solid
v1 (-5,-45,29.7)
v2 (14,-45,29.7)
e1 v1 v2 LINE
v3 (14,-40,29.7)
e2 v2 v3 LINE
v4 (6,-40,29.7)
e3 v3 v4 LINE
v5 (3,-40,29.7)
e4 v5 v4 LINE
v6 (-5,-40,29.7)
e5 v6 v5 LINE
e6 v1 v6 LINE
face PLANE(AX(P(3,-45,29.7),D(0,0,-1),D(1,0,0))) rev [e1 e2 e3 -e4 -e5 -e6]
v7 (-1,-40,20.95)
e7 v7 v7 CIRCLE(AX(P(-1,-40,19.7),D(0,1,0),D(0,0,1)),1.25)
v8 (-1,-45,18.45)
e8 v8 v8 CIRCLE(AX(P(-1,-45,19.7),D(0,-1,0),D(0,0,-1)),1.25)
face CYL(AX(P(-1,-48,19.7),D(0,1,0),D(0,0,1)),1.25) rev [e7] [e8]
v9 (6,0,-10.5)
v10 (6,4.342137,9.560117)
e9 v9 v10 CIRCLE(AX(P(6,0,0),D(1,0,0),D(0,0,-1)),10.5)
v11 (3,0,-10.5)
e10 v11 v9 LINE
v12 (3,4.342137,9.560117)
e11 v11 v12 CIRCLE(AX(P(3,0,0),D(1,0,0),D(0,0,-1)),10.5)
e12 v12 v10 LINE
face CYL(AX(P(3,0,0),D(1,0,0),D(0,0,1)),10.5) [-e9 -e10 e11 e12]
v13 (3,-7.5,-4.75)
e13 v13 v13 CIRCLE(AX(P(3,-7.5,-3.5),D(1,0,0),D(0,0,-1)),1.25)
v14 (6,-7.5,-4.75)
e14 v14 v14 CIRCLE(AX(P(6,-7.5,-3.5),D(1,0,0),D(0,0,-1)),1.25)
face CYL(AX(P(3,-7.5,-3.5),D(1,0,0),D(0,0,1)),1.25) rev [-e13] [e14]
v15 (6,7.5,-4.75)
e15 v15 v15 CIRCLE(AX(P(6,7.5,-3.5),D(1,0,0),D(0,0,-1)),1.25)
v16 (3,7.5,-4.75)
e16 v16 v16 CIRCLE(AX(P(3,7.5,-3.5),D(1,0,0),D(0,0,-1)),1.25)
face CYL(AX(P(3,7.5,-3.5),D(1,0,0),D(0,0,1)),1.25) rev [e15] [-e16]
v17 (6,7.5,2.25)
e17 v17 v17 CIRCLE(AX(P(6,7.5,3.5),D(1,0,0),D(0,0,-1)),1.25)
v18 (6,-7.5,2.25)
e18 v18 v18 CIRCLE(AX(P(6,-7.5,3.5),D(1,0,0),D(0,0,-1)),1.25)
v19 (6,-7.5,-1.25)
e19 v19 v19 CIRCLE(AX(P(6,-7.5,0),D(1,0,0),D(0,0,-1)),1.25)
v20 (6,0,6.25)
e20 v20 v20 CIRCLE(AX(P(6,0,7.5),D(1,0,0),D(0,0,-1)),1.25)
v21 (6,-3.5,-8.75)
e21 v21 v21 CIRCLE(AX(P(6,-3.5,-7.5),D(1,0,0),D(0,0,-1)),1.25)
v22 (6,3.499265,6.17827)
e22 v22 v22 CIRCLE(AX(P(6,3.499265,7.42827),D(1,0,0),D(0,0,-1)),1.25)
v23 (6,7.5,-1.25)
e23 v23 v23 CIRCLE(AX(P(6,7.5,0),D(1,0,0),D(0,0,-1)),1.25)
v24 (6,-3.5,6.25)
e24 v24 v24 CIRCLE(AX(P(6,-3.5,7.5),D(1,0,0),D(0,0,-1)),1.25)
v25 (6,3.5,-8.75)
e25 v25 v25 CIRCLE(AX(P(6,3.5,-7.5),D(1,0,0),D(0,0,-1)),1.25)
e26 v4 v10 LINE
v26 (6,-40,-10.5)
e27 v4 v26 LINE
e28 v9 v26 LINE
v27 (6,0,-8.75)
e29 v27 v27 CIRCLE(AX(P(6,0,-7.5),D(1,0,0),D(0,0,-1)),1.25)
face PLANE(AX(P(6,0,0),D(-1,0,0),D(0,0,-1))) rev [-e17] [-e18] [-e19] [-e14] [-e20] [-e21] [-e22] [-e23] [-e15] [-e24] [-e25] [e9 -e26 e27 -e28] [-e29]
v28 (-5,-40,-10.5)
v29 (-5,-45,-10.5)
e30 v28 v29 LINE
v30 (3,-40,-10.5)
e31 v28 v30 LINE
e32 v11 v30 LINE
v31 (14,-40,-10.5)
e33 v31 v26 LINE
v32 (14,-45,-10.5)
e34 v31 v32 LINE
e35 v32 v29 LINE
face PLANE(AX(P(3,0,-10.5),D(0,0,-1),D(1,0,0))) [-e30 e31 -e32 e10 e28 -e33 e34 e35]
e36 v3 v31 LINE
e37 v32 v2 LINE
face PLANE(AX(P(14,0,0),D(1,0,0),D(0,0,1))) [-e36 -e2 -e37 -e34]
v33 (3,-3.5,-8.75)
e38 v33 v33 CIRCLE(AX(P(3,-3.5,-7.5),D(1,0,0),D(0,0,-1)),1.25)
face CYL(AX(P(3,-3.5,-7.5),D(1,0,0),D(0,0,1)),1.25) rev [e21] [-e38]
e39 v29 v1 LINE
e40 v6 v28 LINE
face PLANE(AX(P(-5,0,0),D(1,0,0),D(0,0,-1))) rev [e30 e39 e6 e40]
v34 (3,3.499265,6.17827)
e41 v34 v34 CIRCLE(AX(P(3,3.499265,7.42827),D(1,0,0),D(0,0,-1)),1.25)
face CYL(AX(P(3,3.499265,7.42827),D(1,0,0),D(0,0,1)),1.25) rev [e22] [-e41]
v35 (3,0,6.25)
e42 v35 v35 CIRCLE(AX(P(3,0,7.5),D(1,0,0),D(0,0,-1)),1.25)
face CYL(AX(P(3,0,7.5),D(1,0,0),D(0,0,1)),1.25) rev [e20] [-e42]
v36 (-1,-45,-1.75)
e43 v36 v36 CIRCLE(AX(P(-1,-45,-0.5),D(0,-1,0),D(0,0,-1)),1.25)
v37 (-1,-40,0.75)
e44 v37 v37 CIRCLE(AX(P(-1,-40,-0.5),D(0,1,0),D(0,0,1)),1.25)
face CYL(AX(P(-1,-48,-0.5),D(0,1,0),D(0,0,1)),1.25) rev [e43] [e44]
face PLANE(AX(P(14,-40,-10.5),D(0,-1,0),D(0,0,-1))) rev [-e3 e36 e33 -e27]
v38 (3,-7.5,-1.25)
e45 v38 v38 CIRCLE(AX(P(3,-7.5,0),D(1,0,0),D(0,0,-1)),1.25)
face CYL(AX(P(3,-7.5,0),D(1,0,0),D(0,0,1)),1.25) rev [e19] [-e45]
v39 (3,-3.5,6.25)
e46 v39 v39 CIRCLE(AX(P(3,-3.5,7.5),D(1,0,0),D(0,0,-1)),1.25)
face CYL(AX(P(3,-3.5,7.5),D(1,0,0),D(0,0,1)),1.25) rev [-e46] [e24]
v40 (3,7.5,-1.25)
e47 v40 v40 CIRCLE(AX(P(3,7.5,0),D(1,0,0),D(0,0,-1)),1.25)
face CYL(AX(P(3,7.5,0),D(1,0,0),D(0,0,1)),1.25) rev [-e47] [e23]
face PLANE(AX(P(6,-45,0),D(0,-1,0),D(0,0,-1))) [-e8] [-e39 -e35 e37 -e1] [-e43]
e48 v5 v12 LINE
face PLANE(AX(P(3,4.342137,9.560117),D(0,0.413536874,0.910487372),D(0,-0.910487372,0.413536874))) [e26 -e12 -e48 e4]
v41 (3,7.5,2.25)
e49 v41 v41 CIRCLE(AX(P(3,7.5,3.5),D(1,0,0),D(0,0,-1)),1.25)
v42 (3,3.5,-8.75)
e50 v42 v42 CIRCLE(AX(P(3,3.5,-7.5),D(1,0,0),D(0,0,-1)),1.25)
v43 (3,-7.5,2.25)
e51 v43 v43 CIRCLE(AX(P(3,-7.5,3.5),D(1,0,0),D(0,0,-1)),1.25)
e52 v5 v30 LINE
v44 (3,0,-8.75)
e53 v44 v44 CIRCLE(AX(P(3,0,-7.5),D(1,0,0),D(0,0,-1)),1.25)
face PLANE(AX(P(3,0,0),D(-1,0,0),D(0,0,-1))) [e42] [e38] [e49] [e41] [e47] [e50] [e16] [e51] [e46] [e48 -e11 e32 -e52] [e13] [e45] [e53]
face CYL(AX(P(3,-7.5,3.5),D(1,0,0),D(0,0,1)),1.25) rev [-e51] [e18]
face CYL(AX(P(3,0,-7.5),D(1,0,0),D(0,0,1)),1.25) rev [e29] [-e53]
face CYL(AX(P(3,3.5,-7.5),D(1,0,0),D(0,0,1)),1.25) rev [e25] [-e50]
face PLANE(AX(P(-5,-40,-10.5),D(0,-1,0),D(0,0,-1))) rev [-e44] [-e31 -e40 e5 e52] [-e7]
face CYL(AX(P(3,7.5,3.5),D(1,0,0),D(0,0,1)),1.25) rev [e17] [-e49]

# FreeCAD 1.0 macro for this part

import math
import FreeCAD as App
import Part
import Sketcher

V = App.Vector


def add_polygon(sketch, points):
    """Adds a closed chain of lines whose ends are joined by coincident constraints."""
    first, n = sketch.GeometryCount, len(points)
    for a, b in zip(points, points[1:] + points[:1]):
        sketch.addGeometry(Part.LineSegment(App.Vector(*a, 0), App.Vector(*b, 0)), False)
    for i in range(n):
        sketch.addConstraint(Sketcher.Constraint("Coincident", first + i, 2, first + (i + 1) % n, 1))

doc = App.newDocument("Part")
body = doc.addObject("PartDesign::Body", "Body")

# Sketch on YZ plane
sketch1 = doc.addObject("Sketcher::SketchObject", "Sketch")
body.addObject(sketch1)
sketch1.AttachmentSupport = (doc.YZ_Plane, [""])
sketch1.MapMode = "FlatFace"
sketch1.addGeometry([
    Part.LineSegment(V(-40, -10.5, 0), V(0, -10.5, 0)),  # 0
    Part.ArcOfCircle(Part.Circle(V(0, 0, 0), V(0, 0, 1), 10.5), math.radians(-90), math.radians(66)),  # 1
    Part.LineSegment(V(4.3, 9.6, 0), V(-40, 29.7, 0)),  # 2
    Part.LineSegment(V(-40, 29.7, 0), V(-40, -10.5, 0)),  # 3
    Part.Circle(V(7.5, -3.5, 0), V(0, 0, 1), 1.2),  # 4
    Part.Circle(V(-7.5, 3.5, 0), V(0, 0, 1), 1.2),  # 5
    Part.Circle(V(-3.5, 7.5, 0), V(0, 0, 1), 1.2),  # 6
    Part.Circle(V(-7.5, 0, 0), V(0, 0, 1), 1.2),  # 7
    Part.Circle(V(-7.5, -3.5, 0), V(0, 0, 1), 1.2),  # 8
    Part.Circle(V(-3.5, -7.5, 0), V(0, 0, 1), 1.2),  # 9
    Part.Circle(V(0, 7.5, 0), V(0, 0, 1), 1.2),  # 10
    Part.Circle(V(3.5, 7.4, 0), V(0, 0, 1), 1.2),  # 11
    Part.Circle(V(7.5, 3.5, 0), V(0, 0, 1), 1.2),  # 12
    Part.Circle(V(0, -7.5, 0), V(0, 0, 1), 1.2),  # 13
    Part.Circle(V(3.5, -7.5, 0), V(0, 0, 1), 1.2),  # 14
    Part.Circle(V(7.5, 0, 0), V(0, 0, 1), 1.2),  # 15
], False)
sketch1.addConstraint([
    Sketcher.Constraint("Tangent", 0, 2, 1, 1),
    Sketcher.Constraint("Tangent", 1, 2, 2, 1),
    Sketcher.Constraint("Coincident", 2, 2, 3, 1),
    Sketcher.Constraint("Coincident", 3, 2, 0, 1),
    Sketcher.Constraint("Horizontal", 0),
    Sketcher.Constraint("Vertical", 3),
    Sketcher.Constraint("Coincident", 1, 3, -1, 1),
    Sketcher.Constraint("Equal", 4, 5),
    Sketcher.Constraint("Equal", 5, 6),
    Sketcher.Constraint("Equal", 6, 7),
    Sketcher.Constraint("Equal", 7, 8),
    Sketcher.Constraint("Equal", 8, 9),
    Sketcher.Constraint("Equal", 9, 10),
    Sketcher.Constraint("Equal", 10, 11),
    Sketcher.Constraint("Equal", 11, 12),
    Sketcher.Constraint("Equal", 12, 13),
    Sketcher.Constraint("Equal", 13, 14),
    Sketcher.Constraint("Equal", 14, 15),
    Sketcher.Constraint("Symmetric", 4, 3, 5, 3, -1, 1),
    Sketcher.Constraint("Symmetric", 8, 3, 12, 3, -1, 1),
    Sketcher.Constraint("Symmetric", 10, 3, 13, 3, -1, 1),
    Sketcher.Constraint("Symmetric", 6, 3, 14, 3, -1, 1),
    Sketcher.Constraint("Symmetric", 7, 3, 15, 3, -1, 1),
    Sketcher.Constraint("Symmetric", 4, 3, 8, 3, -2),
    Sketcher.Constraint("Symmetric", 9, 3, 14, 3, -2),
    Sketcher.Constraint("PointOnObject", 7, 3, -1),
    Sketcher.Constraint("PointOnObject", 10, 3, -2),
    Sketcher.Constraint("Horizontal", 6, 3, 10, 3),
    Sketcher.Constraint("Vertical", 5, 3, 7, 3),
    Sketcher.Constraint("Diameter", 4, 2.5),
    Sketcher.Constraint("Radius", 1, 10.5),
    Sketcher.Constraint("DistanceX", 0, 1, 0, 2, 40.0),
    Sketcher.Constraint("DistanceY", 3, 2, 3, 1, 40.2),
    Sketcher.Constraint("DistanceX", 5, 3, 4, 3, 15.0),
    Sketcher.Constraint("DistanceY", 4, 3, 5, 3, 7.0),
    Sketcher.Constraint("DistanceX", 5, 3, 6, 3, 4.0),
    Sketcher.Constraint("DistanceY", 5, 3, 6, 3, 4.0),
    Sketcher.Constraint("DistanceY", -1, 1, 11, 3, 7.42827),
    Sketcher.Constraint("DistanceX", -1, 1, 11, 3, 3.499265),
])
pad1 = doc.addObject("PartDesign::Pad", "Pad")
body.addObject(pad1)
pad1.Profile = sketch1
pad1.Length = 3

# Sketch on XZ plane
sketch2 = doc.addObject("Sketcher::SketchObject", "Sketch001")
body.addObject(sketch2)
sketch2.AttachmentSupport = (doc.XZ_Plane, [""])
sketch2.MapMode = "FlatFace"
sketch2.AttachmentOffset = App.Placement(V(0, 0, 40), App.Rotation())
add_polygon(sketch2, [(3, -10.5), (3, 29.7), (0, 29.7), (0, -10.5)])  # lines 0-3
sketch2.addConstraint([
    Sketcher.Constraint("Vertical", 0),
    Sketcher.Constraint("Horizontal", 1),
    Sketcher.Constraint("Vertical", 2),
    Sketcher.Constraint("Horizontal", 3),
    Sketcher.Constraint("PointOnObject", 1, 2, -2),
    Sketcher.Constraint("DistanceX", 1, 2, 1, 1, 3.0),
    Sketcher.Constraint("DistanceY", 0, 1, 0, 2, 40.2),
    Sketcher.Constraint("DistanceY", -1, 1, 0, 2, 29.7),
])
pad2 = doc.addObject("PartDesign::Pad", "Pad001")
body.addObject(pad2)
pad2.Profile = sketch2
pad2.Length = 5

# Sketch on YZ plane
sketch3 = doc.addObject("Sketcher::SketchObject", "Sketch002")
body.addObject(sketch3)
sketch3.AttachmentSupport = (doc.YZ_Plane, [""])
sketch3.MapMode = "FlatFace"
add_polygon(sketch3, [(-40, -10), (-45, -10), (-45, 30), (-40, 30)])  # lines 0-3
sketch3.addConstraint([
    Sketcher.Constraint("Horizontal", 0),
    Sketcher.Constraint("Vertical", 1),
    Sketcher.Constraint("Horizontal", 2),
    Sketcher.Constraint("Vertical", 3),
    Sketcher.Constraint("DistanceX", 0, 2, 0, 1, 5.0),
    Sketcher.Constraint("DistanceY", 1, 1, 1, 2, 40.2),
    Sketcher.Constraint("DistanceX", 0, 2, -1, 1, 45.0),
    Sketcher.Constraint("DistanceY", 0, 2, -1, 1, 10.5),
])
pad3 = doc.addObject("PartDesign::Pad", "Pad002")
body.addObject(pad3)
pad3.Profile = sketch3
pad3.Length = 8
pad3.Reversed = True
body2 = doc.addObject("PartDesign::Body", "Body001")
doc.recompute()

mirroring = doc.addObject("Part::Mirroring", "Mirroring")
mirroring.Source = body
mirroring.Base = V(3, 0, 0)
mirroring.Normal = V(1, 0, 0)
body2.BaseFeature = mirroring
doc.recompute()

# Sketch on YZ plane
sketch4 = doc.addObject("Sketcher::SketchObject", "Sketch003")
body2.addObject(sketch4)
sketch4.AttachmentSupport = (doc.getObject("YZ_Plane001"), [""])
sketch4.MapMode = "FlatFace"
sketch4.AttachmentOffset = App.Placement(V(0, 0, 3), App.Rotation())
add_polygon(sketch4, [(-40, -10), (-45, -10), (-45, 30), (-40, 30)])  # lines 0-3
sketch4.addConstraint([
    Sketcher.Constraint("Horizontal", 0),
    Sketcher.Constraint("Vertical", 1),
    Sketcher.Constraint("Horizontal", 2),
    Sketcher.Constraint("Vertical", 3),
    Sketcher.Constraint("DistanceX", 0, 2, 0, 1, 5.0),
    Sketcher.Constraint("DistanceY", 1, 1, 1, 2, 40.2),
    Sketcher.Constraint("DistanceX", 0, 2, -1, 1, 45.0),
    Sketcher.Constraint("DistanceY", 0, 2, -1, 1, 10.5),
])
pad4 = doc.addObject("PartDesign::Pad", "Pad003")
body2.addObject(pad4)
pad4.Profile = sketch4
pad4.Length = 8
pad4.Reversed = True

# Sketch on XZ plane
sketch5 = doc.addObject("Sketcher::SketchObject", "Sketch004")
body2.addObject(sketch5)
sketch5.AttachmentSupport = (doc.getObject("XZ_Plane001"), [""])
sketch5.MapMode = "FlatFace"
sketch5.AttachmentOffset = App.Placement(V(0, 0, 40), App.Rotation())
sketch5.addGeometry([
    Part.Circle(V(-1, -0.5, 0), V(0, 0, 1), 1.2),
    Part.Circle(V(-1, 19.7, 0), V(0, 0, 1), 1.2),
], False)
sketch5.addConstraint([
    Sketcher.Constraint("Equal", 0, 1),
    Sketcher.Constraint("Vertical", 0, 3, 1, 3),
    Sketcher.Constraint("Diameter", 0, 2.5),
    Sketcher.Constraint("DistanceX", 0, 3, -1, 1, 1.0),
    Sketcher.Constraint("DistanceY", 0, 3, -1, 1, 0.5),
    Sketcher.Constraint("DistanceY", -1, 1, 1, 3, 19.7),
])
pocket1 = doc.addObject("PartDesign::Pocket", "Pocket")
body2.addObject(pocket1)
pocket1.Profile = sketch5
pocket1.Length = 8
pocket1.Reversed = True
body.Visibility = False
mirroring.Visibility = False

doc.recompute()
